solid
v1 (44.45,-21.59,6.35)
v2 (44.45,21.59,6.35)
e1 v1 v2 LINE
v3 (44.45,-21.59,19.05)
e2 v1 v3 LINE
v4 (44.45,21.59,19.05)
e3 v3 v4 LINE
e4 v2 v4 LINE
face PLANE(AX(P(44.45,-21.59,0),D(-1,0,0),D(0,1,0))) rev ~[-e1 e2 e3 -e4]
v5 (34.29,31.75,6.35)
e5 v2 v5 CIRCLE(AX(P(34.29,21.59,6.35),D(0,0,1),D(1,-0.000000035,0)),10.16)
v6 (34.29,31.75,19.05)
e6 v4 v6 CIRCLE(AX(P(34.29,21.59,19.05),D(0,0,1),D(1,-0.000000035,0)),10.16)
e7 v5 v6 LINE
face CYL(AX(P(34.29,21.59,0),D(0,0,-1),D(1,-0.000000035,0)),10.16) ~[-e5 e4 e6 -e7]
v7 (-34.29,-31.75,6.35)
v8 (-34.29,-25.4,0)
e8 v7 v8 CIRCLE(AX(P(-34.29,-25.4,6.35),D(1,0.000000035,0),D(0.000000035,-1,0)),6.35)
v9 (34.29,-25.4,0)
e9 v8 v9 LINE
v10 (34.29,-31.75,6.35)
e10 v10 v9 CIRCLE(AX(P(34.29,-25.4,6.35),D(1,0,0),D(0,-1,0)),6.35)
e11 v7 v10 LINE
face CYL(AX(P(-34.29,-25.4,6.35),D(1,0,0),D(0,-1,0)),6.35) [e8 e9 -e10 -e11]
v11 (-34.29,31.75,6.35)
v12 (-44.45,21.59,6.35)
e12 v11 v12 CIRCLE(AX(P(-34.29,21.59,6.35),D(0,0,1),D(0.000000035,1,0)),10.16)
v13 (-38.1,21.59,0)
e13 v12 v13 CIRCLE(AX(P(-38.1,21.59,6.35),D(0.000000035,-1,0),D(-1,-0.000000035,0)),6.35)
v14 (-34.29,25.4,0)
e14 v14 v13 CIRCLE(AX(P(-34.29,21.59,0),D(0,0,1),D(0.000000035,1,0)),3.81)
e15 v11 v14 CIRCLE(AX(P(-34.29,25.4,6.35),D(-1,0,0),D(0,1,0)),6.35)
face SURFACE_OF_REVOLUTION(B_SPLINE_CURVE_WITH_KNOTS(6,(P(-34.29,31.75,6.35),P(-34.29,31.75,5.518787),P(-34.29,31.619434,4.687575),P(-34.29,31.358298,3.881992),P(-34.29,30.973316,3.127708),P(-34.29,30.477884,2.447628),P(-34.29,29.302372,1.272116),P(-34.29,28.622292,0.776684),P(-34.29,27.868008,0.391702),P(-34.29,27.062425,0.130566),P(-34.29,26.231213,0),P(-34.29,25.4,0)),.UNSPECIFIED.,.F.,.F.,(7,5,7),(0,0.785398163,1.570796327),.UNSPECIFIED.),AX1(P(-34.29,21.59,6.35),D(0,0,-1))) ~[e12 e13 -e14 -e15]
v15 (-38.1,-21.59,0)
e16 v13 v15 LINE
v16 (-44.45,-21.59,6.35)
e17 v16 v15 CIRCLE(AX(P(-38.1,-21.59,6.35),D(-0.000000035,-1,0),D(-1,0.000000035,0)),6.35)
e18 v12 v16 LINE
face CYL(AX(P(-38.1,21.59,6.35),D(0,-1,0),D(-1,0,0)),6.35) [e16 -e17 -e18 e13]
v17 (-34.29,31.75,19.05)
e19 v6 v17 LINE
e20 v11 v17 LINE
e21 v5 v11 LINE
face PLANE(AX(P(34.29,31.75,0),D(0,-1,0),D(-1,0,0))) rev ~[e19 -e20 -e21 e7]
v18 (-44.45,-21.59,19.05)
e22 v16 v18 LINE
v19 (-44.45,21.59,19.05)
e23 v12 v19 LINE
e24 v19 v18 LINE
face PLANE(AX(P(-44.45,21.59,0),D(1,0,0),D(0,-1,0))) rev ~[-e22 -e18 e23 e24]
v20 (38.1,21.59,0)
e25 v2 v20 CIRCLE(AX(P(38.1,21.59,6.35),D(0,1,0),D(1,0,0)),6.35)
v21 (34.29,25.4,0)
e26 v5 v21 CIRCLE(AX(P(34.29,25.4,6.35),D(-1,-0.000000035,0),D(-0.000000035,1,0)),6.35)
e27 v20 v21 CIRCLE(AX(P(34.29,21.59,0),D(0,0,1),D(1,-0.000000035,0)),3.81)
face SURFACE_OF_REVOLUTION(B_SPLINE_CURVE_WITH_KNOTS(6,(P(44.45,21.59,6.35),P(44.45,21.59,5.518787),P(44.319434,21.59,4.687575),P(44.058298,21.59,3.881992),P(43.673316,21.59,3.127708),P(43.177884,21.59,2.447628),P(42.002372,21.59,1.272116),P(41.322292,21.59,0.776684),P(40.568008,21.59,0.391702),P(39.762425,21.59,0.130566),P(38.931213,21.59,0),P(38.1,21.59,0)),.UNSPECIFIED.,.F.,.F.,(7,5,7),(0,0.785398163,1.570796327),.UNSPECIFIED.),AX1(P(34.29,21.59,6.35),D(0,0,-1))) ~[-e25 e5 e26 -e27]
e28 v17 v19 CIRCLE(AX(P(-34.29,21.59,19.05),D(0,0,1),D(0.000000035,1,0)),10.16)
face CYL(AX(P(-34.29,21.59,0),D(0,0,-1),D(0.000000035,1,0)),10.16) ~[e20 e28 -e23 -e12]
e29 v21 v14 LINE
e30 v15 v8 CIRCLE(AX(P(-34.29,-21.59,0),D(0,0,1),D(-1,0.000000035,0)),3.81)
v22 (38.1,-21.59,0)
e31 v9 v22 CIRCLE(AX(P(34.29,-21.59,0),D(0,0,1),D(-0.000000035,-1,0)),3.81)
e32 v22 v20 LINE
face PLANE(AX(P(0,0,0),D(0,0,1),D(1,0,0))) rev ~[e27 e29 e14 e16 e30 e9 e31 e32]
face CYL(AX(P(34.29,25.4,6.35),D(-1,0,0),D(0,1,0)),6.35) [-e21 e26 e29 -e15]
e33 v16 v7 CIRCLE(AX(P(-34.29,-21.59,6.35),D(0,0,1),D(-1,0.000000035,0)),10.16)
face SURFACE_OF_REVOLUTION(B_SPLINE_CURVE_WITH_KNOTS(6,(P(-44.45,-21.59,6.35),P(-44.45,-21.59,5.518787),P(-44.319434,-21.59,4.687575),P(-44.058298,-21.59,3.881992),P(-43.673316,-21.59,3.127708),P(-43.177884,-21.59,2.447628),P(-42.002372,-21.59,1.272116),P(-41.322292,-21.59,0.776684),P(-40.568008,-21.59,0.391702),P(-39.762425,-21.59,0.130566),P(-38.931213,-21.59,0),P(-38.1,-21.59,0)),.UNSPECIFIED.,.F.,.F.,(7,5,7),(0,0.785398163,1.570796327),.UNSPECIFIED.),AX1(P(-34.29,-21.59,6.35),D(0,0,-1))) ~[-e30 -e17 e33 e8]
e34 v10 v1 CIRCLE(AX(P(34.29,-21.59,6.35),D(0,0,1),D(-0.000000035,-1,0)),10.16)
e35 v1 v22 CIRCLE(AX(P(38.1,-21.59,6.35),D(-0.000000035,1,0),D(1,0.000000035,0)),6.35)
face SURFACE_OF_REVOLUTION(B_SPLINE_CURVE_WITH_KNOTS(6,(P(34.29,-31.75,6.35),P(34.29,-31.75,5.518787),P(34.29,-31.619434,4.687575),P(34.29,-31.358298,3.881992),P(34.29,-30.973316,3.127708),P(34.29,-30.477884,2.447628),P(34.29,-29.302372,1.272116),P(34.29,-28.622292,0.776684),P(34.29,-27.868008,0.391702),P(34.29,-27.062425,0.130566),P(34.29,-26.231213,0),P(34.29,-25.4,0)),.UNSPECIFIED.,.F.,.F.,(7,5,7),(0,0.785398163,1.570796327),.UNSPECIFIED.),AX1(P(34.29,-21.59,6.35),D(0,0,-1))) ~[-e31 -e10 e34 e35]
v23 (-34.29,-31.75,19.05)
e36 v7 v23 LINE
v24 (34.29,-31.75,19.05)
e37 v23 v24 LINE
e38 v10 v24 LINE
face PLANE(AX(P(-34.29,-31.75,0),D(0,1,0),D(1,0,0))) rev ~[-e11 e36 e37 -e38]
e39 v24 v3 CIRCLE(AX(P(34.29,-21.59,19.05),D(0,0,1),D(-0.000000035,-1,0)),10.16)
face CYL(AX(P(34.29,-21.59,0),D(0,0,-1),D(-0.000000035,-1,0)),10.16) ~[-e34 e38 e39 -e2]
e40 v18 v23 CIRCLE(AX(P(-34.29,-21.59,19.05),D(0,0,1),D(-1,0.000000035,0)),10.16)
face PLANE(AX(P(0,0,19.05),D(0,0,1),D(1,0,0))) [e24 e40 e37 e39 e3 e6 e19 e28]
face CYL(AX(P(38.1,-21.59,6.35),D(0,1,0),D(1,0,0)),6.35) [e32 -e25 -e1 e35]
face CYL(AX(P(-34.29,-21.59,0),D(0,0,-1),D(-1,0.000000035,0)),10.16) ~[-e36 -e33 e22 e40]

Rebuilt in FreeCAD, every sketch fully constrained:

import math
import FreeCAD as App
import Part
import Sketcher
Q = App.Units.Quantity


def edges_at(feature, points):
    """Names of the edges that pass closest to the given points."""
    edges = feature.Shape.Edges
    near = lambda p: min(range(len(edges)), key=lambda i: edges[i].distToShape(Part.Vertex(*p))[0])
    return sorted({f"Edge{near(p) + 1}" for p in points})

doc = App.newDocument("Part")
params = doc.addObject("Spreadsheet::Sheet", "Params")
for row, (alias, value) in enumerate([
    ("sketch1_radius", "0.4 in"),
    ("sketch1_width", "2.7 in"),
    ("sketch1_height", "1.7 in"),
    ("pad1_length", "0.75 in"),
    ("fillet_radius", "0.25 in"),
], start=1):
    params.set(f"A{row}", alias)
    params.set(f"B{row}", "=" + value)
    params.setAlias(f"B{row}", alias)

body = doc.addObject("PartDesign::Body", "Body")

# Sketch on XY plane
sketch1 = body.newObject("Sketcher::SketchObject", "Sketch")
sketch1.AttachmentSupport = (doc.getObject("XY_Plane"), [""])
sketch1.MapMode = "FlatFace"
sketch1.addGeometry([
    Part.LineSegment(App.Vector(34, 32, 0), App.Vector(-34, 32, 0)),  # 0
    Part.ArcOfCircle(Part.Circle(App.Vector(-34, 22, 0), App.Vector(0, 0, 1), 10), math.radians(90), math.radians(180)),  # 1
    Part.LineSegment(App.Vector(-44, 22, 0), App.Vector(-44, -22, 0)),  # 2
    Part.ArcOfCircle(Part.Circle(App.Vector(-34, -22, 0), App.Vector(0, 0, 1), 10), math.radians(180), math.radians(270)),  # 3
    Part.LineSegment(App.Vector(-34, -32, 0), App.Vector(34, -32, 0)),  # 4
    Part.ArcOfCircle(Part.Circle(App.Vector(34, -22, 0), App.Vector(0, 0, 1), 10), math.radians(-90), math.radians(0)),  # 5
    Part.LineSegment(App.Vector(44, -22, 0), App.Vector(44, 22, 0)),  # 6
    Part.ArcOfCircle(Part.Circle(App.Vector(34, 22, 0), App.Vector(0, 0, 1), 10), math.radians(0), math.radians(90)),  # 7
], False)
sketch1.addConstraint([
    Sketcher.Constraint("Tangent", 0, 2, 1, 1),
    Sketcher.Constraint("Tangent", 1, 2, 2, 1),
    Sketcher.Constraint("Tangent", 2, 2, 3, 1),
    Sketcher.Constraint("Tangent", 3, 2, 4, 1),
    Sketcher.Constraint("Tangent", 4, 2, 5, 1),
    Sketcher.Constraint("Tangent", 5, 2, 6, 1),
    Sketcher.Constraint("Tangent", 6, 2, 7, 1),
    Sketcher.Constraint("Tangent", 7, 2, 0, 1),
    Sketcher.Constraint("Horizontal", 0),
    Sketcher.Constraint("Vertical", 2),
    Sketcher.Constraint("Horizontal", 4),
    Sketcher.Constraint("Vertical", 6),
    Sketcher.Constraint("Equal", 1, 3),
    Sketcher.Constraint("Equal", 3, 5),
    Sketcher.Constraint("Equal", 5, 7),
    Sketcher.Constraint("Symmetric", 1, 3, 5, 3, -1, 1),
    Sketcher.Constraint("Radius", 1, Q("0.4 in")),
    Sketcher.Constraint("DistanceX", 0, 2, 0, 1, Q("2.7 in")),
    Sketcher.Constraint("DistanceY", 2, 2, 2, 1, Q("1.7 in")),
])
sketch1.setExpression("Constraints[16]", "Params.sketch1_radius")
sketch1.setExpression("Constraints[17]", "Params.sketch1_width")
sketch1.setExpression("Constraints[18]", "Params.sketch1_height")
pad1 = body.newObject("PartDesign::Pad", "Pad")
pad1.Profile = sketch1
pad1.setExpression("Length", "Params.pad1_length")
doc.recompute()

fillet = body.newObject("PartDesign::Fillet", "Fillet")
fillet.Base = (pad1, edges_at(pad1, [(-41.474, -28.774, 0)]))
fillet.setExpression("Radius", "Params.fillet_radius")

doc.recompute()
